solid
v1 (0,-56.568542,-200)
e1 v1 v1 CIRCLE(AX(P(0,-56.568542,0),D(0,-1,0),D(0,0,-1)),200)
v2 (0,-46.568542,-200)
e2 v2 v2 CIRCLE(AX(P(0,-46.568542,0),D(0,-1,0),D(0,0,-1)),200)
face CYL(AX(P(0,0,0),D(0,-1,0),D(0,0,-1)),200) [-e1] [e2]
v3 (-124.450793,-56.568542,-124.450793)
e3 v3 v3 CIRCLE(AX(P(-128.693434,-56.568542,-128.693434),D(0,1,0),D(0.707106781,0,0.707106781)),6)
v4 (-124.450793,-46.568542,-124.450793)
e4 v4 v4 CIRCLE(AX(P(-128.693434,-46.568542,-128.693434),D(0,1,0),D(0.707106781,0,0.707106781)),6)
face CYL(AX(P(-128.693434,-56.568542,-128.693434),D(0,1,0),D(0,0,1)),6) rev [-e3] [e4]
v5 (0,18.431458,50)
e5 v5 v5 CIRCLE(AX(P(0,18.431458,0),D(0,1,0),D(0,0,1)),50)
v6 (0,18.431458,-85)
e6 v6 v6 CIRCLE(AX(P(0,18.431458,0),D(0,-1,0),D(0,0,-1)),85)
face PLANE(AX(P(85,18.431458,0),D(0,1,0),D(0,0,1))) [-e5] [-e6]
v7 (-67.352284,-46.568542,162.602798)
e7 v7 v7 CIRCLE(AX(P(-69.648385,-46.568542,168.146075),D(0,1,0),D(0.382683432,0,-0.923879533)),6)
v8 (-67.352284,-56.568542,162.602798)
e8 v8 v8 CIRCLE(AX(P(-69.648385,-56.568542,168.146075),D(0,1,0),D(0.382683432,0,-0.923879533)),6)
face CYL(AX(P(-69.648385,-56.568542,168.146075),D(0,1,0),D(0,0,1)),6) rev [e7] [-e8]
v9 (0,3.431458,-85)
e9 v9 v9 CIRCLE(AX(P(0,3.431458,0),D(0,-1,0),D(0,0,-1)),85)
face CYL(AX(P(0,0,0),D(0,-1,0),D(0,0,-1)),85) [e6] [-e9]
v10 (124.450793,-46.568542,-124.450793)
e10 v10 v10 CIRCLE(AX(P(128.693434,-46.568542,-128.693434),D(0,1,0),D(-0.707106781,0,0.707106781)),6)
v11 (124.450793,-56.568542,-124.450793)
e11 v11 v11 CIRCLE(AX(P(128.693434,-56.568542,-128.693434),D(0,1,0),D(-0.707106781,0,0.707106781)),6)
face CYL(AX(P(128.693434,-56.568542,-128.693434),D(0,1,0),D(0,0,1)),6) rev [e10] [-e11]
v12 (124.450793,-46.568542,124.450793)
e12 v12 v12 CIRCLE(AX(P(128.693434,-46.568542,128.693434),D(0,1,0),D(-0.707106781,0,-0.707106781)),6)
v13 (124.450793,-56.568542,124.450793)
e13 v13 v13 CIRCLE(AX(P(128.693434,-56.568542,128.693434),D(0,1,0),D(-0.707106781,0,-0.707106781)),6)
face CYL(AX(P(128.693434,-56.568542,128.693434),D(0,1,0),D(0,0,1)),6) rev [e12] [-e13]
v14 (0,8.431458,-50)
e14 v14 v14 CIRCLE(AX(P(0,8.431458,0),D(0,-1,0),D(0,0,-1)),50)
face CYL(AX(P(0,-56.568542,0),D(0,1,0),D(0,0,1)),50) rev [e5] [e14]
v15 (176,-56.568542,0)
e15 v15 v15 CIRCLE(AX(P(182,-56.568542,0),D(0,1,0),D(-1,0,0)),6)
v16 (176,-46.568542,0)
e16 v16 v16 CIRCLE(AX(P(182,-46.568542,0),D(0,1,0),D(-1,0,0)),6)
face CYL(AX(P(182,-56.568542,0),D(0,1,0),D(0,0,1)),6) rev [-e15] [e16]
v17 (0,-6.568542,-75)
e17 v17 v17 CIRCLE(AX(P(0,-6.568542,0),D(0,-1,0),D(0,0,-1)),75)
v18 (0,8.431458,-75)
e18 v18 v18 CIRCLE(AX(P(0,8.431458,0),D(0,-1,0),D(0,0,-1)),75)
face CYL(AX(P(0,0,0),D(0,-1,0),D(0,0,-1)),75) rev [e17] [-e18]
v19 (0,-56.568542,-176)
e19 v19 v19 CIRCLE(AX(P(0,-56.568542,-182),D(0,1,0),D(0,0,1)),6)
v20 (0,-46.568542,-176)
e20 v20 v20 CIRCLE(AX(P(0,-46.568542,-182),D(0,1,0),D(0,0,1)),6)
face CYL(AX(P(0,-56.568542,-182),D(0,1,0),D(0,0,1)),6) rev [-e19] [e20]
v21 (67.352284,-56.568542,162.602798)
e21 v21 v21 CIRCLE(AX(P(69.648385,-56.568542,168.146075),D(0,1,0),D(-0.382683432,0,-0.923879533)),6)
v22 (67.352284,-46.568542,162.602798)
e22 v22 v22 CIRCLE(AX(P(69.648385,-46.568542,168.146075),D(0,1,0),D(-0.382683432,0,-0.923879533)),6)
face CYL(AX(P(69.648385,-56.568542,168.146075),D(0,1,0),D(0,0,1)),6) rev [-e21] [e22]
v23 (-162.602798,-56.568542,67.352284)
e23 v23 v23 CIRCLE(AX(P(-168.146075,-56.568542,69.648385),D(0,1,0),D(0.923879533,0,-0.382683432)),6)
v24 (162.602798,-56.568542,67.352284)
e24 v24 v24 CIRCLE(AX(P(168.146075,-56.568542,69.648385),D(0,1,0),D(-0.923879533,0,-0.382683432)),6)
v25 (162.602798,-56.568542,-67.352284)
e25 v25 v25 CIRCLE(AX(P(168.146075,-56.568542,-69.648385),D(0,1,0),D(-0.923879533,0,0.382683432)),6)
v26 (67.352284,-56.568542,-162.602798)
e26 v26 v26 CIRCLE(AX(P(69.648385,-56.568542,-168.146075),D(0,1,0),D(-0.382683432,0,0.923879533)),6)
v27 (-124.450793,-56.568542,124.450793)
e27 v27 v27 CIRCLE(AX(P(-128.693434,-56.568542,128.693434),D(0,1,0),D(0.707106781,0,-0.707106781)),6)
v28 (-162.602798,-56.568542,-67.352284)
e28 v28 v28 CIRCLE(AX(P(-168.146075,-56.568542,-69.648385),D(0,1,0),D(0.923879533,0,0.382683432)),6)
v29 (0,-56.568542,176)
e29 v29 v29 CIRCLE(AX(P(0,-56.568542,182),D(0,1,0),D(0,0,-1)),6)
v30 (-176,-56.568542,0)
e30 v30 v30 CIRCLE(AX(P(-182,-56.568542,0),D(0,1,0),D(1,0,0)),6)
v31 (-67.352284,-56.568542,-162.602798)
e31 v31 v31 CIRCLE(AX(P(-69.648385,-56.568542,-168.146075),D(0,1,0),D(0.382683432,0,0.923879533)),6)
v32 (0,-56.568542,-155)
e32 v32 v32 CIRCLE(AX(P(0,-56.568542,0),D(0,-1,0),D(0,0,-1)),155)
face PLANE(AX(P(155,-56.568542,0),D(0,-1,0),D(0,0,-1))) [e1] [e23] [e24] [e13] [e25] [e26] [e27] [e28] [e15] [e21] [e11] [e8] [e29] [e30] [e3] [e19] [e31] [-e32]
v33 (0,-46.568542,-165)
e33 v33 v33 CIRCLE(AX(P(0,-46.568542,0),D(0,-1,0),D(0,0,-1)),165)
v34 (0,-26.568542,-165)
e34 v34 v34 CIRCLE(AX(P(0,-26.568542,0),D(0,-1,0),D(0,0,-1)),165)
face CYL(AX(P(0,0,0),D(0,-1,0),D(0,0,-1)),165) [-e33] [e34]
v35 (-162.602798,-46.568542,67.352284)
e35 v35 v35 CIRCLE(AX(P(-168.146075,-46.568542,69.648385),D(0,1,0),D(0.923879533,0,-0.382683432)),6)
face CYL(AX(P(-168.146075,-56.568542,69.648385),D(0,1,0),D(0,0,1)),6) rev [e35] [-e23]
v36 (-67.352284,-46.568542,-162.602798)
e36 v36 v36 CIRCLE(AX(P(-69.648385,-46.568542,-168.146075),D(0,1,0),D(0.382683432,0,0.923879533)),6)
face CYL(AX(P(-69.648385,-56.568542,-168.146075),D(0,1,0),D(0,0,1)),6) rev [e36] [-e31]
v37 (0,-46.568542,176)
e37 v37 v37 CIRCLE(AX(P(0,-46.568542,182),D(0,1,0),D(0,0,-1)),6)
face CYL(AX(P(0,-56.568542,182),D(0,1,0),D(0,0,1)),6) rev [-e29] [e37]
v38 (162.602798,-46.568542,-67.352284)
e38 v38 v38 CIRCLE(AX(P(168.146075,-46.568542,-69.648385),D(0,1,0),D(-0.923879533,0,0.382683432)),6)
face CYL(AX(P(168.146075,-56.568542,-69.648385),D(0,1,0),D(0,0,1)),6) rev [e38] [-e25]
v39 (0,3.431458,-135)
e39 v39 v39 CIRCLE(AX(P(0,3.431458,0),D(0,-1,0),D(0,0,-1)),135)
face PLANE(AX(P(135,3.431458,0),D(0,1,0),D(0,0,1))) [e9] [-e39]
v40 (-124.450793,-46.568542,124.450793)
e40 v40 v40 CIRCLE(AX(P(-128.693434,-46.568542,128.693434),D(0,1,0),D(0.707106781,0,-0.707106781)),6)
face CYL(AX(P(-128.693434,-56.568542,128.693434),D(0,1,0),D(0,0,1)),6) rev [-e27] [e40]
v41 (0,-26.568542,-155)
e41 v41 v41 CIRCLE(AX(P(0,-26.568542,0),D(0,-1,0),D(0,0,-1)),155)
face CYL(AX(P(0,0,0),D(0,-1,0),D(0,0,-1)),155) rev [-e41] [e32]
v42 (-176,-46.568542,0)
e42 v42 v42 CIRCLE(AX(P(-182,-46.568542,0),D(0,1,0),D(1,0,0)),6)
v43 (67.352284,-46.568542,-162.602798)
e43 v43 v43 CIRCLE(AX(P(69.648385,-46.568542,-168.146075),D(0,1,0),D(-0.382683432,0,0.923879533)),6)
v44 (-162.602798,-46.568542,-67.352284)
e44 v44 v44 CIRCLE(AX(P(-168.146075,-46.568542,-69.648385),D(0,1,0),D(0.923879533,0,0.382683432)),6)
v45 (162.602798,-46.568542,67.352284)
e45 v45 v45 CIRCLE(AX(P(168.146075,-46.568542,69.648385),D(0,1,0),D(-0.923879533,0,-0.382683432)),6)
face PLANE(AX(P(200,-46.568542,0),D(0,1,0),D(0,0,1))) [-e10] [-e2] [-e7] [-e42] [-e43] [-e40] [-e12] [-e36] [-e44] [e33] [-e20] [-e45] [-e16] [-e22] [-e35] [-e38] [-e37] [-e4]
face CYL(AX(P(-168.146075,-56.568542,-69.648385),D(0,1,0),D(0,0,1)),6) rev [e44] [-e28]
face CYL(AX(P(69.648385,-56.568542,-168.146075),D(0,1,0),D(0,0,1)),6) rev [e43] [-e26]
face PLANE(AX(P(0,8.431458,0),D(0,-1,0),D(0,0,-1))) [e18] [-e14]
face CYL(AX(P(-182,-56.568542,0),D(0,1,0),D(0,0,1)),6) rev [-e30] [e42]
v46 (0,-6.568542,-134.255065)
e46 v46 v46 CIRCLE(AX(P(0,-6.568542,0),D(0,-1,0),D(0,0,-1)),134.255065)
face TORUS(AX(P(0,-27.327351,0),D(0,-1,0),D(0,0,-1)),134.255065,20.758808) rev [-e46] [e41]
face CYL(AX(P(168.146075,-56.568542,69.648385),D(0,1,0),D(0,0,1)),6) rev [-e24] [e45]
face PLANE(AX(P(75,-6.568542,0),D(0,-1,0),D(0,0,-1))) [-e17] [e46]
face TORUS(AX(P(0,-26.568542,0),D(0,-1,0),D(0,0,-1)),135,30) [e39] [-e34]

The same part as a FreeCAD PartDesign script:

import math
import FreeCAD as App
import Part
import Sketcher
from FreeCAD import Vector
Q = App.Units.Quantity

doc = App.newDocument("Part")
body = doc.addObject("PartDesign::Body", "Body")

# Sketch on XY plane
sketch1 = body.newObject("Sketcher::SketchObject", "Sketch")
sketch1.AttachmentSupport = (doc.getObject("XY_Plane"), [""])
sketch1.MapMode = "FlatFace"
sketch1.addGeometry([
    Part.LineSegment(Vector(155, -56.568542, 0), Vector(200, -56.568542, 0)),  # 0
    Part.LineSegment(Vector(200, -56.568542, 0), Vector(200, -46.568542, 0)),  # 1
    Part.LineSegment(Vector(200, -46.568542, 0), Vector(165, -46.568542, 0)),  # 2
    Part.LineSegment(Vector(165, -46.568542, 0), Vector(165, -26.568542, 0)),  # 3
    Part.ArcOfCircle(Part.Circle(Vector(135, -26.568542, 0), Vector(0, 0, 1), 30), math.radians(0), math.radians(90)),  # 4
    Part.LineSegment(Vector(135, 3.431458, 0), Vector(85, 3.431458, 0)),  # 5
    Part.LineSegment(Vector(85, 3.431458, 0), Vector(85, 18.431458, 0)),  # 6
    Part.LineSegment(Vector(85, 18.431458, 0), Vector(0, 18.431458, 0)),  # 7
    Part.LineSegment(Vector(0, 18.431458, 0), Vector(0, 8.431458, 0)),  # 8
    Part.LineSegment(Vector(0, 8.431458, 0), Vector(75, 8.431458, 0)),  # 9
    Part.LineSegment(Vector(75, 8.431458, 0), Vector(75, -6.568542, 0)),  # 10
    Part.LineSegment(Vector(75, -6.568542, 0), Vector(134.255065, -6.568542, 0)),  # 11
    Part.ArcOfCircle(Part.Circle(Vector(134.255065, -27.327351, 0), Vector(0, 0, 1), 20.758808), math.radians(2.094831), math.radians(90)),  # 12
    Part.LineSegment(Vector(155, -26.568542, 0), Vector(155, -56.568542, 0)),  # 13
], False)
sketch1.addConstraint([
    Sketcher.Constraint("Coincident", 0, 2, 1, 1),
    Sketcher.Constraint("Coincident", 1, 2, 2, 1),
    Sketcher.Constraint("Coincident", 2, 2, 3, 1),
    Sketcher.Constraint("Tangent", 3, 2, 4, 1),
    Sketcher.Constraint("Tangent", 4, 2, 5, 1),
    Sketcher.Constraint("Coincident", 5, 2, 6, 1),
    Sketcher.Constraint("Coincident", 6, 2, 7, 1),
    Sketcher.Constraint("Coincident", 7, 2, 8, 1),
    Sketcher.Constraint("Coincident", 8, 2, 9, 1),
    Sketcher.Constraint("Coincident", 9, 2, 10, 1),
    Sketcher.Constraint("Coincident", 10, 2, 11, 1),
    Sketcher.Constraint("Tangent", 11, 2, 12, 2),
    Sketcher.Constraint("Coincident", 12, 1, 13, 1),
    Sketcher.Constraint("Coincident", 13, 2, 0, 1),
    Sketcher.Constraint("Horizontal", 0),
    Sketcher.Constraint("Vertical", 1),
    Sketcher.Constraint("Horizontal", 2),
    Sketcher.Constraint("Vertical", 3),
    Sketcher.Constraint("Horizontal", 5),
    Sketcher.Constraint("Vertical", 6),
    Sketcher.Constraint("Horizontal", 7),
    Sketcher.Constraint("Vertical", 8),
    Sketcher.Constraint("Horizontal", 9),
    Sketcher.Constraint("Vertical", 10),
    Sketcher.Constraint("Horizontal", 11),
    Sketcher.Constraint("Vertical", 13),
    Sketcher.Constraint("PointOnObject", 7, 2, -2),
    Sketcher.Constraint("Horizontal", 3, 2, 12, 1),
    Sketcher.Constraint("Equal", 1, 8),
    Sketcher.Constraint("Equal", 6, 10),
    Sketcher.Constraint("Radius", 4, Q("30 mm")),
    Sketcher.Constraint("DistanceX", 0, 1, 0, 2, Q("45 mm")),
    Sketcher.Constraint("DistanceX", 2, 2, 2, 1, Q("35 mm")),
    Sketcher.Constraint("DistanceX", 5, 2, 5, 1, Q("50 mm")),
    Sketcher.Constraint("DistanceX", 7, 2, 7, 1, Q("85 mm")),
    Sketcher.Constraint("DistanceX", 9, 1, 9, 2, Q("75 mm")),
    Sketcher.Constraint("DistanceY", 1, 1, 1, 2, Q("10 mm")),
    Sketcher.Constraint("DistanceY", 3, 1, 3, 2, Q("20 mm")),
    Sketcher.Constraint("DistanceY", 6, 1, 6, 2, Q("15 mm")),
    Sketcher.Constraint("Radius", 12, Q("20.758808 mm")),
    Sketcher.Constraint("DistanceY", 12, 3, -1, 1, Q("27.327351 mm")),
])
revolution = body.newObject("PartDesign::Revolution", "Revolution")
revolution.Profile = sketch1
revolution.ReferenceAxis = (sketch1, ["V_Axis"])
revolution.Angle = 360

# Sketch on XZ plane
sketch2 = body.newObject("Sketcher::SketchObject", "Sketch001")
sketch2.AttachmentSupport = (doc.getObject("XZ_Plane"), [""])
sketch2.MapMode = "FlatFace"
sketch2.AttachmentOffset = App.Placement(Vector(0, 0, 46.568542), App.Rotation())
sketch2.addGeometry(Part.Circle(Vector(0, -182, 0), Vector(0, 0, 1), 6), False)
sketch2.addConstraint([
    Sketcher.Constraint("PointOnObject", 0, 3, -2),
    Sketcher.Constraint("Diameter", 0, Q("12 mm")),
    Sketcher.Constraint("DistanceY", 0, 3, -1, 1, Q("182 mm")),
])
pocket1 = body.newObject("PartDesign::Pocket", "Pocket")
pocket1.Profile = sketch2
pocket1.Type = "ThroughAll"
pocket1.Reversed = True
doc.recompute()

polarpattern = body.newObject("PartDesign::PolarPattern", "PolarPattern")
polarpattern.Originals = [pocket1]
polarpattern.Axis = (doc.getObject("Y_Axis"), [""])
polarpattern.Angle = 360
polarpattern.Occurrences = 16
body.Tip = polarpattern

# Sketch on XZ plane
sketch3 = body.newObject("Sketcher::SketchObject", "Sketch002")
sketch3.AttachmentSupport = (doc.getObject("XZ_Plane"), [""])
sketch3.MapMode = "FlatFace"
sketch3.AttachmentOffset = App.Placement(Vector(0, 0, -18.431458), App.Rotation())
sketch3.addGeometry(Part.Circle(Vector(0, 0, 0), Vector(0, 0, 1), 50), False)
sketch3.addConstraint([
    Sketcher.Constraint("Coincident", 0, 3, -1, 1),
    Sketcher.Constraint("Diameter", 0, Q("100 mm")),
])
pocket2 = body.newObject("PartDesign::Pocket", "Pocket001")
pocket2.Profile = sketch3
pocket2.Type = "ThroughAll"
pocket2.Reversed = True

doc.recompute()
